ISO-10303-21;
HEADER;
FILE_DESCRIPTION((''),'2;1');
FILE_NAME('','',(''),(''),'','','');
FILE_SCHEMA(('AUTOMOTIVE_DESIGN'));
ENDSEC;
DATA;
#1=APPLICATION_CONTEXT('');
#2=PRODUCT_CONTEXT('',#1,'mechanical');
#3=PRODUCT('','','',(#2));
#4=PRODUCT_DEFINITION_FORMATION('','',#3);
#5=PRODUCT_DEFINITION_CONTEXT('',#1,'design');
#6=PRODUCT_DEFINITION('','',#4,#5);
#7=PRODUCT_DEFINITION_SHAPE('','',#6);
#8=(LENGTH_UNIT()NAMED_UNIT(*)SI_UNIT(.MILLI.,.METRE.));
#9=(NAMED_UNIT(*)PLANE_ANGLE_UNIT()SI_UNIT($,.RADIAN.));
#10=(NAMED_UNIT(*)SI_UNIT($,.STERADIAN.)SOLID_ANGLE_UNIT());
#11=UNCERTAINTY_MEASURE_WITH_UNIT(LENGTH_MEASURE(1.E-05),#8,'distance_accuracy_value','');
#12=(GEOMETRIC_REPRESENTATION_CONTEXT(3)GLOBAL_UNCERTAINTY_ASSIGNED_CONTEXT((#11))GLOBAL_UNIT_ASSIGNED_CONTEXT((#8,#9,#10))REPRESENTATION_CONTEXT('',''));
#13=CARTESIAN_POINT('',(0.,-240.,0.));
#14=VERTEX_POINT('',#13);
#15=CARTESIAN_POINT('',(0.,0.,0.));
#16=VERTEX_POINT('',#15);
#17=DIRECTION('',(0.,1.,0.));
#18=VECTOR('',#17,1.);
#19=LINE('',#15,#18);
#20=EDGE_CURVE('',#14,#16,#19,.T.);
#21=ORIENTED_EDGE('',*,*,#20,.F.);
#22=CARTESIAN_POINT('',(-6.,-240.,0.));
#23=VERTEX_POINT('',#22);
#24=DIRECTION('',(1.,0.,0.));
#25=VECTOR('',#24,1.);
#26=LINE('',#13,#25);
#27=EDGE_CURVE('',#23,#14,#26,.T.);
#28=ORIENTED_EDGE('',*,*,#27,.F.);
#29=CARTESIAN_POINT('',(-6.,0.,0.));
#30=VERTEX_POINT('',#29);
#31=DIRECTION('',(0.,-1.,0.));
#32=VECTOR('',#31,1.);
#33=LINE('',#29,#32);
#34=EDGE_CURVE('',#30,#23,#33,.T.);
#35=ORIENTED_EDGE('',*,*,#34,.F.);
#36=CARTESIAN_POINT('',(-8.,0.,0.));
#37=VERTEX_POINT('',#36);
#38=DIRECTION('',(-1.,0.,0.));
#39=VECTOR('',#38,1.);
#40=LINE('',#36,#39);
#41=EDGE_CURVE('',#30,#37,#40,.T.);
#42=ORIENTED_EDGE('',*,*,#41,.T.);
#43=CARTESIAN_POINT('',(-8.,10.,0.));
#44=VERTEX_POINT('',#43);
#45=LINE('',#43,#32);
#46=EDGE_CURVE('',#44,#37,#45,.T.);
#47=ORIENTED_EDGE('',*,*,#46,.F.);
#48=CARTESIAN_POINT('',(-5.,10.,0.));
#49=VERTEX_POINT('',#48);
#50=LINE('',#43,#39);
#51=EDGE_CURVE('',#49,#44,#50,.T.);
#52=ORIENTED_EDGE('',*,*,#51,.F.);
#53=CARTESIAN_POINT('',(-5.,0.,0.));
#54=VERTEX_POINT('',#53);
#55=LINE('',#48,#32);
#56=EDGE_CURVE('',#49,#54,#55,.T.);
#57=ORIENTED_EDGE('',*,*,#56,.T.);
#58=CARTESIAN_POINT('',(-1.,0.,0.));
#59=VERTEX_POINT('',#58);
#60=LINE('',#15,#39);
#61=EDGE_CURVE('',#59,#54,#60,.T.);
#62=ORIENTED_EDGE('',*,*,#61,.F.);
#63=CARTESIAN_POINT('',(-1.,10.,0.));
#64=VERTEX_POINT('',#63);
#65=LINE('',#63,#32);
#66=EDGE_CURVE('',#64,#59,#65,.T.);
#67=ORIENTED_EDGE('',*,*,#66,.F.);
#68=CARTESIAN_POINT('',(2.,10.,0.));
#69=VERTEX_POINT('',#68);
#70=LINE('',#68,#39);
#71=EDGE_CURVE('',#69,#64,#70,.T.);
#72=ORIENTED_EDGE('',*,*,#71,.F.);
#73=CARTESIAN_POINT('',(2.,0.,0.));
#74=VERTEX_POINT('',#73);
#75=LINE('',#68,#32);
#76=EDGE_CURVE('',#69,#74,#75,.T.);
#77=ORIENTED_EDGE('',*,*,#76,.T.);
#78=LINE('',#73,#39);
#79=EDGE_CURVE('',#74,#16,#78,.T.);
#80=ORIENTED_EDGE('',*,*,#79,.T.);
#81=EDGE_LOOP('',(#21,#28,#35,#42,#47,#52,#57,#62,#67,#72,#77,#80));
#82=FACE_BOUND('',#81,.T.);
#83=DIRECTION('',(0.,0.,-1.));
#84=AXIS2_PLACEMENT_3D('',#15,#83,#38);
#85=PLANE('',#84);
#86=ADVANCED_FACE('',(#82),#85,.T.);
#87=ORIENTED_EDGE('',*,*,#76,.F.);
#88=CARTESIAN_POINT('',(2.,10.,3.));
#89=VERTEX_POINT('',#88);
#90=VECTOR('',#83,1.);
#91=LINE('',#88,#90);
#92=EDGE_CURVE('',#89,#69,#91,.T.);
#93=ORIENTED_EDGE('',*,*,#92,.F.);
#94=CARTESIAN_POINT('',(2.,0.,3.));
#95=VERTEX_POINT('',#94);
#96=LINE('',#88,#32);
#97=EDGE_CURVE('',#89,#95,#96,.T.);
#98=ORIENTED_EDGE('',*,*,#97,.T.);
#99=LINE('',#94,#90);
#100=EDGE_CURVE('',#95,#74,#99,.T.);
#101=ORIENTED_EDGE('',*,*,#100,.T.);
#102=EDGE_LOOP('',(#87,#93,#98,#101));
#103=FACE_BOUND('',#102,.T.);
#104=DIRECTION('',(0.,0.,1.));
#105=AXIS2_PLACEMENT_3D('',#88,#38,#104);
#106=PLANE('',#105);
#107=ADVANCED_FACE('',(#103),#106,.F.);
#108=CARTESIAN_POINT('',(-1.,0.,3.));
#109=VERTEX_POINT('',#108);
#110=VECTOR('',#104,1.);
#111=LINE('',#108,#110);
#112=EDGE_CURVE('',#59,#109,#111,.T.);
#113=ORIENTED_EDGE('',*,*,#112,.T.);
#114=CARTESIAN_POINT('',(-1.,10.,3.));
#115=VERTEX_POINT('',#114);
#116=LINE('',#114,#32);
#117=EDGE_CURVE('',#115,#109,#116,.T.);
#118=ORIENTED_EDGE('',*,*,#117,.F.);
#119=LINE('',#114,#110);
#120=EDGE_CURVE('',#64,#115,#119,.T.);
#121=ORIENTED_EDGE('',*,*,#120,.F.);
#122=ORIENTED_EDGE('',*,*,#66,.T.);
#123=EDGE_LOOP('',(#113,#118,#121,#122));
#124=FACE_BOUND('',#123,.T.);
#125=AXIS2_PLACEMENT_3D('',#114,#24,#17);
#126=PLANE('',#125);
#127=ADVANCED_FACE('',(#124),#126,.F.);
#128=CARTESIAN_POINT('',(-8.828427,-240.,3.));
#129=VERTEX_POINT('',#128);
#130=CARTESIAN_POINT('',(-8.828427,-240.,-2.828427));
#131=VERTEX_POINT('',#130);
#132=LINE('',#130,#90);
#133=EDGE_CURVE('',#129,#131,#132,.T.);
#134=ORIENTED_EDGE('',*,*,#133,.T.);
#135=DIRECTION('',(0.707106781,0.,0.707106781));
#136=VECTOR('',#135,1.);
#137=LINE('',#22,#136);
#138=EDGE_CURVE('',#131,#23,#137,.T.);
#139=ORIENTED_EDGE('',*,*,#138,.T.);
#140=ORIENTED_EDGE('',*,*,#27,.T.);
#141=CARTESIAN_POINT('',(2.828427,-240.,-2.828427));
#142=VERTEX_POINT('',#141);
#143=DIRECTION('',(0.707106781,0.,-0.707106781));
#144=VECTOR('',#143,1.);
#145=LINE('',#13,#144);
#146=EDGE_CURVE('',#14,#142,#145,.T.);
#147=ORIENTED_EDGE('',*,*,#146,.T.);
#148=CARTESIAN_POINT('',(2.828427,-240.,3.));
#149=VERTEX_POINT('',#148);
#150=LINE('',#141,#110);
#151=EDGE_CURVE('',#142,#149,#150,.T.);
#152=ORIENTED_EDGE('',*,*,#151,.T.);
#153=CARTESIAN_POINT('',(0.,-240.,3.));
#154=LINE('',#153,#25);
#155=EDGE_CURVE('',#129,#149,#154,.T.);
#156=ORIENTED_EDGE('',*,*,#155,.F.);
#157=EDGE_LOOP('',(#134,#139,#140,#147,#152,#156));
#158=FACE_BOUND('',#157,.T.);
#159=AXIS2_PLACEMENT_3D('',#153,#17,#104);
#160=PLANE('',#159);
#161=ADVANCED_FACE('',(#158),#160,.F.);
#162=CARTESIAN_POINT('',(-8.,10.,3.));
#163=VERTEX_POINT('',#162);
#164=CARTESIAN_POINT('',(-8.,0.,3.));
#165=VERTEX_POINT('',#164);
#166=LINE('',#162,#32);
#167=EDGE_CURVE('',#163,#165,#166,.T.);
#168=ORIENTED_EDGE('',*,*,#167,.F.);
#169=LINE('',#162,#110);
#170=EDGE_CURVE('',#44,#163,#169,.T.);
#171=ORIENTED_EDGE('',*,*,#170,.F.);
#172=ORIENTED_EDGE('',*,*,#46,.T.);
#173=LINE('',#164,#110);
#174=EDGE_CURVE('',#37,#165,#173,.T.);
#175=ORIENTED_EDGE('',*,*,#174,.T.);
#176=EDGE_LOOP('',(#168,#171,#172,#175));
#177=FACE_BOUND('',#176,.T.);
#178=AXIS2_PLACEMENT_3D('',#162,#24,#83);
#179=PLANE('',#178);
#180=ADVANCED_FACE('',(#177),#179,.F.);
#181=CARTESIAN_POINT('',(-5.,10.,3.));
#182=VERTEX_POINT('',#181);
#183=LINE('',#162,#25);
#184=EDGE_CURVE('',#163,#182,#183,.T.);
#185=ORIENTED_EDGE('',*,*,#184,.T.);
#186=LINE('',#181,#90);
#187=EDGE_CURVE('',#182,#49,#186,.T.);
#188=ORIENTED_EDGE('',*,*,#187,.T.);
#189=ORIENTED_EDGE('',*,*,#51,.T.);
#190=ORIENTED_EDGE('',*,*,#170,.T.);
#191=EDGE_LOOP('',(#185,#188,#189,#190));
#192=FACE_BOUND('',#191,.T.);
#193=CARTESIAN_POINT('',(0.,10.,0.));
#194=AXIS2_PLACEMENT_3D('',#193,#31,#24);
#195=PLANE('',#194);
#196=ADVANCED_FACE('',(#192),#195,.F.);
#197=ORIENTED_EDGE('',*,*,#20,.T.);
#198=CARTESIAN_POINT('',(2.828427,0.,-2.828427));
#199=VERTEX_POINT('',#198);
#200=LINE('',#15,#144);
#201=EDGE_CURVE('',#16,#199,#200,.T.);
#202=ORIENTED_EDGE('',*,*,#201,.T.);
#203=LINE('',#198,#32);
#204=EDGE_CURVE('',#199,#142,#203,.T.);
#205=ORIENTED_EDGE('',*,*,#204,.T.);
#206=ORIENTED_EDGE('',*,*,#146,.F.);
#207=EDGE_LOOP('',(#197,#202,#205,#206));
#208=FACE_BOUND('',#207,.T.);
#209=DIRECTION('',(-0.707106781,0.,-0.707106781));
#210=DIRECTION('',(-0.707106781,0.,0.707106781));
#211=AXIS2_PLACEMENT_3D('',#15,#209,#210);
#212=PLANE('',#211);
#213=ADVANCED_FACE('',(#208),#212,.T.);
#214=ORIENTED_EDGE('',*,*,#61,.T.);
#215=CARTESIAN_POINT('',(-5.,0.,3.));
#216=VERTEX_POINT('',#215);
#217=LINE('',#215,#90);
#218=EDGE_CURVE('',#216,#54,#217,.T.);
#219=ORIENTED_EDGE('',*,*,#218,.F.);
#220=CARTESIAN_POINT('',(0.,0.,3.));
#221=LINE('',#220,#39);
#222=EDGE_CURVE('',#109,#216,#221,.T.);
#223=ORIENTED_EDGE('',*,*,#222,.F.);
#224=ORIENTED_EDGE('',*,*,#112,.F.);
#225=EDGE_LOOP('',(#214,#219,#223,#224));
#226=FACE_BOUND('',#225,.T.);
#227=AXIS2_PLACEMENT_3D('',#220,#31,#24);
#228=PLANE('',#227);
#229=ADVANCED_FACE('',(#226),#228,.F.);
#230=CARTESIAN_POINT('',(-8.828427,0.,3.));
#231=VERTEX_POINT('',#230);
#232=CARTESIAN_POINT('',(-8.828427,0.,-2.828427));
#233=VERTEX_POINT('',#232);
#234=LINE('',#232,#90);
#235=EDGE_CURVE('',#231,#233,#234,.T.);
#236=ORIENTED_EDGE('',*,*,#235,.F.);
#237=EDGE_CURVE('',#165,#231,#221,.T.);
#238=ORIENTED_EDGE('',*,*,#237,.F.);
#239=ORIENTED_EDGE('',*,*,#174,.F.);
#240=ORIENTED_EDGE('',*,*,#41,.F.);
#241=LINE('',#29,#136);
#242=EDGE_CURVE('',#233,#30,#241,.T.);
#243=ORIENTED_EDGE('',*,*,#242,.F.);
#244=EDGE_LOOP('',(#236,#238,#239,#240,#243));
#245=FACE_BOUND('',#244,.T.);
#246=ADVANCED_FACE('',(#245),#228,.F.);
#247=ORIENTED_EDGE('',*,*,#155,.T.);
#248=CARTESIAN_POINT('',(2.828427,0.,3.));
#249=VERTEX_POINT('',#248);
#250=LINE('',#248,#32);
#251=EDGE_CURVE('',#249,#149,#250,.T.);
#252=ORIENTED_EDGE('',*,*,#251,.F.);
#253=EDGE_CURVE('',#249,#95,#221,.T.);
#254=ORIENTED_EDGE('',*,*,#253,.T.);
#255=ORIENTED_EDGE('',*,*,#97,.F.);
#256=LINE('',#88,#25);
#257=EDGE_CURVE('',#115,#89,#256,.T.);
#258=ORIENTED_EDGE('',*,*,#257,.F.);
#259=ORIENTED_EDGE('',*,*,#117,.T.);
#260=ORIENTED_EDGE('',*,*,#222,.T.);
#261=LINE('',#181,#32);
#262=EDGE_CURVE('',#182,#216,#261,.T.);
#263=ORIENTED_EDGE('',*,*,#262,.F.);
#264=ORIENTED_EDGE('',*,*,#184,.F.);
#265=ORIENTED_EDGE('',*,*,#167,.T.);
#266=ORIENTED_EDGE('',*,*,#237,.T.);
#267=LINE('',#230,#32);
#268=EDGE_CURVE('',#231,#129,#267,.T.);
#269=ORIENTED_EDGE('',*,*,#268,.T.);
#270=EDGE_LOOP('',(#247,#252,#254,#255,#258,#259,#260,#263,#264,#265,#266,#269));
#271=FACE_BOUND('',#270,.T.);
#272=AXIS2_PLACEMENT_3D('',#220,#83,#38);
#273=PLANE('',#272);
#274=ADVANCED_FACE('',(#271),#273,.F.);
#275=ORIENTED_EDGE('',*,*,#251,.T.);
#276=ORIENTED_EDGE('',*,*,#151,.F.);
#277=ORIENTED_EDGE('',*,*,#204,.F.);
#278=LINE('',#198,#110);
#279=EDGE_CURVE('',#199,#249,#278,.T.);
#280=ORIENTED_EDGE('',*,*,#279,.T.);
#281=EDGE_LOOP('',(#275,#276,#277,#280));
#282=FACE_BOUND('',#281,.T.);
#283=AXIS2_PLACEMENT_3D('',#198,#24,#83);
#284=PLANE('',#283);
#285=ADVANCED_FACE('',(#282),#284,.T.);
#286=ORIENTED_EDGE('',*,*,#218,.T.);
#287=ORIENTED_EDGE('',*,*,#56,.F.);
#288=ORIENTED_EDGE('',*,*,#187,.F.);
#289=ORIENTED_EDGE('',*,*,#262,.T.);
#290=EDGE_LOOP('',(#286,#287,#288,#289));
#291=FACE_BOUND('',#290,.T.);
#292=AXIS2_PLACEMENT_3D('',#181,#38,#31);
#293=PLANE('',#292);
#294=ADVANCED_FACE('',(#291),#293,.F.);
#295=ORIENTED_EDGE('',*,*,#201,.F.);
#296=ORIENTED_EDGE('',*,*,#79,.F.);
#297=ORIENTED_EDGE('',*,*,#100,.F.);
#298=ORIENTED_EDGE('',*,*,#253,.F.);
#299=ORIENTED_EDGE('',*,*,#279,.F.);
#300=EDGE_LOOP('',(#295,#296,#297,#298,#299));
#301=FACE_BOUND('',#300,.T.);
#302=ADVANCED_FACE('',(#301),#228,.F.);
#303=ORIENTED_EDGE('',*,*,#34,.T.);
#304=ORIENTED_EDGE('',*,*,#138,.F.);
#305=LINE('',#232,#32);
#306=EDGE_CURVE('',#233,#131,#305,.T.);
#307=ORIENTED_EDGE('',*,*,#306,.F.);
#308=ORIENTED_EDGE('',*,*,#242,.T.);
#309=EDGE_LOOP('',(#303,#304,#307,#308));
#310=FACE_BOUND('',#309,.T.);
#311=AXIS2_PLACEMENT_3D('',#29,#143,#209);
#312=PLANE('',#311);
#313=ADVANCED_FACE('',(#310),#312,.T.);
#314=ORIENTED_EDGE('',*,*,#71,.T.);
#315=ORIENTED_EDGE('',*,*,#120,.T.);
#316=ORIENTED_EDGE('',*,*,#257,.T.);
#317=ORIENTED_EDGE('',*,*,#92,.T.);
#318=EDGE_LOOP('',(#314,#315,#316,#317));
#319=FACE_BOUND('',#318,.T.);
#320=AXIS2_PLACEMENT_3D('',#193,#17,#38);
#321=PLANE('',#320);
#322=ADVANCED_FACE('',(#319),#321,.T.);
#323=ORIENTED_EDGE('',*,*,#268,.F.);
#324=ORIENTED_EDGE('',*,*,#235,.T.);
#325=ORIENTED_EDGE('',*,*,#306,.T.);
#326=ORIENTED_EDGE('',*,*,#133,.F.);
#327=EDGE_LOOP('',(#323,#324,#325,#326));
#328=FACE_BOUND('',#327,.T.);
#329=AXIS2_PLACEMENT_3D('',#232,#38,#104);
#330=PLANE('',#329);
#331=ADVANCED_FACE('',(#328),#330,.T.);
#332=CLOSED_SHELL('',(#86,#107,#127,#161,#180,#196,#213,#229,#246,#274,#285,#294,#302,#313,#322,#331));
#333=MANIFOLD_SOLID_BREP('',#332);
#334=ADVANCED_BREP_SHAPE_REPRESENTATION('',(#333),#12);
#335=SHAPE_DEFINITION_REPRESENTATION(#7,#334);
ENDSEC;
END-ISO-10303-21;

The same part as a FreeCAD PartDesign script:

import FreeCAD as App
import Part
import Sketcher


def add_polygon(sketch, points):
    """Adds a closed chain of lines whose ends are joined by coincident constraints."""
    first, n = sketch.GeometryCount, len(points)
    for a, b in zip(points, points[1:] + points[:1]):
        sketch.addGeometry(Part.LineSegment(App.Vector(*a, 0), App.Vector(*b, 0)), False)
    for i in range(n):
        sketch.addConstraint(Sketcher.Constraint("Coincident", first + i, 2, first + (i + 1) % n, 1))

doc = App.newDocument("Part")
body = doc.addObject("PartDesign::Body", "Body")

# Sketch on XY plane
sketch1 = body.newObject("Sketcher::SketchObject", "Sketch")
sketch1.AttachmentSupport = (doc.getObject("XY_Plane"), [""])
sketch1.MapMode = "FlatFace"
add_polygon(sketch1, [(-6, 0), (-6, -240), (0, -240), (0, 0)])  # lines 0-3
sketch1.addConstraint(Sketcher.Constraint("Vertical", 0))
sketch1.addConstraint(Sketcher.Constraint("Horizontal", 1))
sketch1.addConstraint(Sketcher.Constraint("Vertical", 2))
sketch1.addConstraint(Sketcher.Constraint("Horizontal", 3))
sketch1.addConstraint(Sketcher.Constraint("Coincident", 2, 2, -1, 1))
sketch1.addConstraint(Sketcher.Constraint("DistanceX", 1, 1, 1, 2, 6.0))
sketch1.addConstraint(Sketcher.Constraint("DistanceY", 0, 2, 0, 1, 240.0))
pad1 = body.newObject("PartDesign::Pad", "Pad")
pad1.Profile = sketch1
pad1.Length = 3

# Sketch on XZ plane
sketch2 = body.newObject("Sketcher::SketchObject", "Sketch001")
sketch2.AttachmentSupport = (doc.getObject("XZ_Plane"), [""])
sketch2.MapMode = "FlatFace"
sketch2.AttachmentOffset = App.Placement(App.Vector(0, 0, 240), App.Rotation())
add_polygon(sketch2, [(0, 0), (2.8, -2.8), (2.8, 3), (0, 3)])  # lines 0-3
add_polygon(sketch2, [(-6, 3), (-8.8, 3), (-8.8, -2.8), (-6, 0)])  # lines 4-7
sketch2.addConstraint(Sketcher.Constraint("Vertical", 1))
sketch2.addConstraint(Sketcher.Constraint("Horizontal", 2))
sketch2.addConstraint(Sketcher.Constraint("Vertical", 3))
sketch2.addConstraint(Sketcher.Constraint("Horizontal", 4))
sketch2.addConstraint(Sketcher.Constraint("Vertical", 5))
sketch2.addConstraint(Sketcher.Constraint("Vertical", 7))
sketch2.addConstraint(Sketcher.Constraint("Coincident", 3, 2, -1, 1))
sketch2.addConstraint(Sketcher.Constraint("PointOnObject", 6, 2, -1))
sketch2.addConstraint(Sketcher.Constraint("Perpendicular", 0, 6))
sketch2.addConstraint(Sketcher.Constraint("Horizontal", 2, 2, 4, 2))
sketch2.addConstraint(Sketcher.Constraint("Horizontal", 0, 2, 5, 2))
sketch2.addConstraint(Sketcher.Constraint("Equal", 2, 4))
sketch2.addConstraint(Sketcher.Constraint("DistanceY", 3, 2, 3, 1, 3.0))
sketch2.addConstraint(Sketcher.Constraint("Distance", 0, 4.0))
sketch2.addConstraint(Sketcher.Constraint("DistanceX", 6, 2, -1, 1, 6.0))
pad2 = body.newObject("PartDesign::Pad", "Pad001")
pad2.Profile = sketch2
pad2.Length = 240
pad2.Reversed = True

# Sketch on XZ plane
sketch3 = body.newObject("Sketcher::SketchObject", "Sketch002")
sketch3.AttachmentSupport = (doc.getObject("XZ_Plane"), [""])
sketch3.MapMode = "FlatFace"
add_polygon(sketch3, [(-8, 0), (-8, 3), (-5, 3), (-5, 0)])  # lines 0-3
add_polygon(sketch3, [(-1, 0), (-1, 3), (2, 3), (2, 0)])  # lines 4-7
sketch3.addConstraint(Sketcher.Constraint("Vertical", 0))
sketch3.addConstraint(Sketcher.Constraint("Horizontal", 1))
sketch3.addConstraint(Sketcher.Constraint("Vertical", 2))
sketch3.addConstraint(Sketcher.Constraint("Horizontal", 3))
sketch3.addConstraint(Sketcher.Constraint("Vertical", 4))
sketch3.addConstraint(Sketcher.Constraint("Horizontal", 5))
sketch3.addConstraint(Sketcher.Constraint("Vertical", 6))
sketch3.addConstraint(Sketcher.Constraint("Horizontal", 7))
sketch3.addConstraint(Sketcher.Constraint("PointOnObject", 2, 2, -1))
sketch3.addConstraint(Sketcher.Constraint("PointOnObject", 6, 2, -1))
sketch3.addConstraint(Sketcher.Constraint("Horizontal", 1, 2, 4, 2))
sketch3.addConstraint(Sketcher.Constraint("Equal", 3, 5))
sketch3.addConstraint(Sketcher.Constraint("Equal", 7, 0))
sketch3.addConstraint(Sketcher.Constraint("DistanceX", 1, 1, 1, 2, 3.0))
sketch3.addConstraint(Sketcher.Constraint("DistanceX", 0, 2, -1, 1, 8.0))
sketch3.addConstraint(Sketcher.Constraint("DistanceX", 4, 2, -1, 1, 1.0))
pad3 = body.newObject("PartDesign::Pad", "Pad002")
pad3.Profile = sketch3
pad3.Length = 10
pad3.Reversed = True

doc.recompute()
